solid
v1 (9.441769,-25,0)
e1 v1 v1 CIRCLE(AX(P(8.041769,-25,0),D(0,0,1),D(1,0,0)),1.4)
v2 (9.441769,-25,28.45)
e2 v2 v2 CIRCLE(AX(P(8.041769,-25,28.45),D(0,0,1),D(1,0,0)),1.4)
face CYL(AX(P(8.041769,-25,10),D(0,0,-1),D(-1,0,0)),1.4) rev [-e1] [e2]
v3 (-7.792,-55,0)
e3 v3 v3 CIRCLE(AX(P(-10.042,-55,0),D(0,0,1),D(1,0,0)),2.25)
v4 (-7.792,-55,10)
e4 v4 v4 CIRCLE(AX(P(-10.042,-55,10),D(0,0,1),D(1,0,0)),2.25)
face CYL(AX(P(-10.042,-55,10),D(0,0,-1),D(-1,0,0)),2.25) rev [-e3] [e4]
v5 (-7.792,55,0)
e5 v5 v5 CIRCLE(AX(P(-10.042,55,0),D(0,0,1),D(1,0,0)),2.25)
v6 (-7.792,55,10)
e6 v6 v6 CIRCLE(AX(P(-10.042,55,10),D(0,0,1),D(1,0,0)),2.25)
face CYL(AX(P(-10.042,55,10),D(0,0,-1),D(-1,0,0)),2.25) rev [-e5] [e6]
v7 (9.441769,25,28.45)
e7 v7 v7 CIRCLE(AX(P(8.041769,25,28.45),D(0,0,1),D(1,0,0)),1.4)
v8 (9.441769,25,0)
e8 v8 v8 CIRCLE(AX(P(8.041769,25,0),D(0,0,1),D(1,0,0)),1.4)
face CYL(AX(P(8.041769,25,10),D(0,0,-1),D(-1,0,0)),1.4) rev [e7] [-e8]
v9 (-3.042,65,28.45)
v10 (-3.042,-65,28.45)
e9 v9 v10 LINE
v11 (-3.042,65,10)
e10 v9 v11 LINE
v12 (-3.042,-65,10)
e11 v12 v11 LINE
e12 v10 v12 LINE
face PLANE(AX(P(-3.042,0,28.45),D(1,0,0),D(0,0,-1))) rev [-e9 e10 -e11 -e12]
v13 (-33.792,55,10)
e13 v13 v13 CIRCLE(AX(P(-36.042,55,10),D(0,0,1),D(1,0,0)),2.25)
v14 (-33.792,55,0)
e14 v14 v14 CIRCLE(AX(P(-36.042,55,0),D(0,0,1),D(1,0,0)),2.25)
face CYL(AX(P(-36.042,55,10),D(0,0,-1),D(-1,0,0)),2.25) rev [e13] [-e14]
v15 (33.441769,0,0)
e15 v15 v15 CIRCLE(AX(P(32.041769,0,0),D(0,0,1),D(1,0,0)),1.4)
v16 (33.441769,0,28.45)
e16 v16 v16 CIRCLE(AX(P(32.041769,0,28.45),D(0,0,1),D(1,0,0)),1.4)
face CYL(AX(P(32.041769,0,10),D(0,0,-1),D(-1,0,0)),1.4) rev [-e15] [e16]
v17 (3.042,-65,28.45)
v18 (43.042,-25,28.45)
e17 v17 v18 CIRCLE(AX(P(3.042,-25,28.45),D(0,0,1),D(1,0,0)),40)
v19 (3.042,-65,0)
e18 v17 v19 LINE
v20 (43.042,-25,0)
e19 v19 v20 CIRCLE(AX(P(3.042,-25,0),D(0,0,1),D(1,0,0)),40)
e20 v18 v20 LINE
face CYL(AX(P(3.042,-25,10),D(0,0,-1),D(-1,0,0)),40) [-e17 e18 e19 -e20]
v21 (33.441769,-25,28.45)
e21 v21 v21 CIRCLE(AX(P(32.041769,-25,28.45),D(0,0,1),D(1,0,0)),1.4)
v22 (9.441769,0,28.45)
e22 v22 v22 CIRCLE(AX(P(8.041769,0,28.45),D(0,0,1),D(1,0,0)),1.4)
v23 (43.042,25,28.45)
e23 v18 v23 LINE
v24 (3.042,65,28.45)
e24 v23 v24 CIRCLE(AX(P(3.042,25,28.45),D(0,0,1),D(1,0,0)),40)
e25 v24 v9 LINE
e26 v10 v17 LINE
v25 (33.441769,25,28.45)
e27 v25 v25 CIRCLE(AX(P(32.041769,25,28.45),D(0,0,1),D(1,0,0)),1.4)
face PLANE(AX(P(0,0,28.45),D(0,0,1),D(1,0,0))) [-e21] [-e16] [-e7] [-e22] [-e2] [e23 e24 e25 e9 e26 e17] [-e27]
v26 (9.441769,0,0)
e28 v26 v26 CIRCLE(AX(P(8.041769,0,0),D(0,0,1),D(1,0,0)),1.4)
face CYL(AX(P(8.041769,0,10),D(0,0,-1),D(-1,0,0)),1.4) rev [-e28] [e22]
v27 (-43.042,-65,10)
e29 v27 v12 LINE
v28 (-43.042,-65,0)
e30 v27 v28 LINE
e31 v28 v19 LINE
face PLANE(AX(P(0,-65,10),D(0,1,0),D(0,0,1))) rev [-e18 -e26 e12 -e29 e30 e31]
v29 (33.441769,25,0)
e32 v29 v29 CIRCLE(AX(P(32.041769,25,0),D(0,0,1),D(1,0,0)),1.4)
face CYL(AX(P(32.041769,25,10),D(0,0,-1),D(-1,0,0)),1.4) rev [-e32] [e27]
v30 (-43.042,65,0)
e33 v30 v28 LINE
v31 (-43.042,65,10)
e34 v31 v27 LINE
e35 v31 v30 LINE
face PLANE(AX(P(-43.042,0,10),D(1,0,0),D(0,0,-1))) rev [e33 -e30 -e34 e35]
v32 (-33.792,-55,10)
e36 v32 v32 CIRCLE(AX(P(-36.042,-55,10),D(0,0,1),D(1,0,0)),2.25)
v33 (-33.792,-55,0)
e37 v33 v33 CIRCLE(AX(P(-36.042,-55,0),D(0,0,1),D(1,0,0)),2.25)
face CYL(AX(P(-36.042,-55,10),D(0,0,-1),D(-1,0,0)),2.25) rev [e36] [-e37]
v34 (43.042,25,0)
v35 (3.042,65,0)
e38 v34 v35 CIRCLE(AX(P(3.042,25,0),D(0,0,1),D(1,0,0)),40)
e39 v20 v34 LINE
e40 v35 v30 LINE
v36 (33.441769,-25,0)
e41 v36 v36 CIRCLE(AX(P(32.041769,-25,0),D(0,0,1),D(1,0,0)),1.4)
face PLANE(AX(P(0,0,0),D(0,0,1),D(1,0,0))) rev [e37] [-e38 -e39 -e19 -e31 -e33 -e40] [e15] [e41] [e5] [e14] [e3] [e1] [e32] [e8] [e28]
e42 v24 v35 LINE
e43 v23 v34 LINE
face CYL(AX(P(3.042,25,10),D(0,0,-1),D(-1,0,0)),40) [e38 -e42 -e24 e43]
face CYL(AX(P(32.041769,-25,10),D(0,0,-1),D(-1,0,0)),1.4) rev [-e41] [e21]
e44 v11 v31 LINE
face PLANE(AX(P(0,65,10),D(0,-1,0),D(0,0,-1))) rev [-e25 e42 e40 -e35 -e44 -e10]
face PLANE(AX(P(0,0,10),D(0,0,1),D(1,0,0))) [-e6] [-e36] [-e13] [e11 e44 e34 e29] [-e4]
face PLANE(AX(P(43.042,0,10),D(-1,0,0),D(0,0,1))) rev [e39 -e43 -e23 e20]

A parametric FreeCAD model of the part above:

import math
import FreeCAD as App
import Part
import Sketcher
Q = App.Units.Quantity

doc = App.newDocument("Part")
body = doc.addObject("PartDesign::Body", "Body")

# Sketch on XY plane
sketch1 = doc.addObject("Sketcher::SketchObject", "Sketch")
body.addObject(sketch1)
sketch1.AttachmentSupport = (doc.XY_Plane, [""])
sketch1.MapMode = "FlatFace"
sketch1.addGeometry([
    Part.LineSegment(App.Vector(-43, 65, 0), App.Vector(-43, -65, 0)),  # 0
    Part.LineSegment(App.Vector(-43, -65, 0), App.Vector(3, -65, 0)),  # 1
    Part.ArcOfCircle(Part.Circle(App.Vector(3, -25, 0), App.Vector(0, 0, 1), 40), math.radians(-90), math.radians(0)),  # 2
    Part.LineSegment(App.Vector(43, -25, 0), App.Vector(43, 25, 0)),  # 3
    Part.ArcOfCircle(Part.Circle(App.Vector(3, 25, 0), App.Vector(0, 0, 1), 40), math.radians(0), math.radians(90)),  # 4
    Part.LineSegment(App.Vector(3, 65, 0), App.Vector(-43, 65, 0)),  # 5
    Part.Circle(App.Vector(-36, -55, 0), App.Vector(0, 0, 1), 2.2),  # 6
    Part.Circle(App.Vector(-10, -55, 0), App.Vector(0, 0, 1), 2.2),  # 7
    Part.Circle(App.Vector(8, -25, 0), App.Vector(0, 0, 1), 1.4),  # 8
    Part.Circle(App.Vector(8, 0, 0), App.Vector(0, 0, 1), 1.4),  # 9
    Part.Circle(App.Vector(32, -25, 0), App.Vector(0, 0, 1), 1.4),  # 10
    Part.Circle(App.Vector(32, 0, 0), App.Vector(0, 0, 1), 1.4),  # 11
    Part.Circle(App.Vector(-36, 55, 0), App.Vector(0, 0, 1), 2.2),  # 12
    Part.Circle(App.Vector(-10, 55, 0), App.Vector(0, 0, 1), 2.2),  # 13
    Part.Circle(App.Vector(8, 25, 0), App.Vector(0, 0, 1), 1.4),  # 14
    Part.Circle(App.Vector(32, 25, 0), App.Vector(0, 0, 1), 1.4),  # 15
], False)
sketch1.addConstraint([
    Sketcher.Constraint("Coincident", 0, 2, 1, 1),
    Sketcher.Constraint("Tangent", 1, 2, 2, 1),
    Sketcher.Constraint("Tangent", 2, 2, 3, 1),
    Sketcher.Constraint("Tangent", 3, 2, 4, 1),
    Sketcher.Constraint("Tangent", 4, 2, 5, 1),
    Sketcher.Constraint("Coincident", 5, 2, 0, 1),
    Sketcher.Constraint("Vertical", 0),
    Sketcher.Constraint("Horizontal", 1),
    Sketcher.Constraint("Vertical", 3),
    Sketcher.Constraint("Horizontal", 5),
    Sketcher.Constraint("Equal", 2, 4),
    Sketcher.Constraint("Equal", 6, 7),
    Sketcher.Constraint("Equal", 8, 9),
    Sketcher.Constraint("Equal", 9, 10),
    Sketcher.Constraint("Equal", 10, 11),
    Sketcher.Constraint("Equal", 7, 12),
    Sketcher.Constraint("Equal", 12, 13),
    Sketcher.Constraint("Equal", 11, 14),
    Sketcher.Constraint("Equal", 14, 15),
    Sketcher.Constraint("Symmetric", 6, 3, 12, 3, -1),
    Sketcher.Constraint("Symmetric", 7, 3, 13, 3, -1),
    Sketcher.Constraint("Symmetric", 8, 3, 14, 3, -1),
    Sketcher.Constraint("Symmetric", 10, 3, 15, 3, -1),
    Sketcher.Constraint("PointOnObject", 9, 3, -1),
    Sketcher.Constraint("PointOnObject", 11, 3, -1),
    Sketcher.Constraint("Horizontal", 6, 3, 7, 3),
    Sketcher.Constraint("Horizontal", 2, 3, 8, 3),
    Sketcher.Constraint("Horizontal", 8, 3, 10, 3),
    Sketcher.Constraint("Horizontal", 4, 3, 14, 3),
    Sketcher.Constraint("Vertical", 8, 3, 9, 3),
    Sketcher.Constraint("Vertical", 10, 3, 11, 3),
    Sketcher.Constraint("Radius", 2, Q("40 mm")),
    Sketcher.Constraint("Diameter", 6, Q("4.5 mm")),
    Sketcher.Constraint("Diameter", 8, Q("2.8 mm")),
    Sketcher.Constraint("DistanceY", 0, 2, 0, 1, Q("130.000001 mm")),
    Sketcher.Constraint("DistanceY", 6, 3, -1, 1, Q("55 mm")),
    Sketcher.Constraint("DistanceX", 6, 3, 7, 3, Q("26 mm")),
    Sketcher.Constraint("DistanceX", 8, 3, 10, 3, Q("24 mm")),
    Sketcher.Constraint("DistanceX", 0, 2, 6, 3, Q("7 mm")),
    Sketcher.Constraint("DistanceX", 1, 1, 1, 2, Q("46.084 mm")),
    Sketcher.Constraint("DistanceX", -1, 1, 2, 3, Q("3.042 mm")),
    Sketcher.Constraint("DistanceX", -1, 1, 8, 3, Q("8.041769 mm")),
])
pad1 = doc.addObject("PartDesign::Pad", "Pad")
body.addObject(pad1)
pad1.Profile = sketch1
pad1.Length = 10

# Sketch on XY plane
sketch2 = doc.addObject("Sketcher::SketchObject", "Sketch001")
body.addObject(sketch2)
sketch2.AttachmentSupport = (doc.XY_Plane, [""])
sketch2.MapMode = "FlatFace"
sketch2.addGeometry([
    Part.LineSegment(App.Vector(43, -25, 0), App.Vector(43, 25, 0)),  # 0
    Part.ArcOfCircle(Part.Circle(App.Vector(3, 25, 0), App.Vector(0, 0, 1), 40), math.radians(0), math.radians(90)),  # 1
    Part.LineSegment(App.Vector(3, 65, 0), App.Vector(-3, 65, 0)),  # 2
    Part.LineSegment(App.Vector(-3, 65, 0), App.Vector(-3, -65, 0)),  # 3
    Part.LineSegment(App.Vector(-3, -65, 0), App.Vector(3, -65, 0)),  # 4
    Part.ArcOfCircle(Part.Circle(App.Vector(3, -25, 0), App.Vector(0, 0, 1), 40), math.radians(-90), math.radians(0)),  # 5
    Part.Circle(App.Vector(8, -25, 0), App.Vector(0, 0, 1), 1.4),  # 6
    Part.Circle(App.Vector(32, -25, 0), App.Vector(0, 0, 1), 1.4),  # 7
    Part.Circle(App.Vector(8, 0, 0), App.Vector(0, 0, 1), 1.4),  # 8
    Part.Circle(App.Vector(8, 25, 0), App.Vector(0, 0, 1), 1.4),  # 9
    Part.Circle(App.Vector(32, 0, 0), App.Vector(0, 0, 1), 1.4),  # 10
    Part.Circle(App.Vector(32, 25, 0), App.Vector(0, 0, 1), 1.4),  # 11
], False)
sketch2.addConstraint([
    Sketcher.Constraint("Tangent", 0, 2, 1, 1),
    Sketcher.Constraint("Tangent", 1, 2, 2, 1),
    Sketcher.Constraint("Coincident", 2, 2, 3, 1),
    Sketcher.Constraint("Coincident", 3, 2, 4, 1),
    Sketcher.Constraint("Tangent", 4, 2, 5, 1),
    Sketcher.Constraint("Tangent", 5, 2, 0, 1),
    Sketcher.Constraint("Vertical", 0),
    Sketcher.Constraint("Horizontal", 2),
    Sketcher.Constraint("Vertical", 3),
    Sketcher.Constraint("Horizontal", 4),
    Sketcher.Constraint("Equal", 1, 5),
    Sketcher.Constraint("Equal", 6, 7),
    Sketcher.Constraint("Equal", 7, 8),
    Sketcher.Constraint("Equal", 8, 9),
    Sketcher.Constraint("Equal", 9, 10),
    Sketcher.Constraint("Equal", 10, 11),
    Sketcher.Constraint("Symmetric", 1, 2, 3, 2, -1, 1),
    Sketcher.Constraint("Symmetric", 6, 3, 9, 3, -1),
    Sketcher.Constraint("Symmetric", 7, 3, 11, 3, -1),
    Sketcher.Constraint("PointOnObject", 8, 3, -1),
    Sketcher.Constraint("PointOnObject", 10, 3, -1),
    Sketcher.Constraint("Horizontal", 5, 3, 6, 3),
    Sketcher.Constraint("Horizontal", 6, 3, 7, 3),
    Sketcher.Constraint("Vertical", 6, 3, 8, 3),
    Sketcher.Constraint("Vertical", 7, 3, 10, 3),
    Sketcher.Constraint("Radius", 1, Q("40 mm")),
    Sketcher.Constraint("Diameter", 6, Q("2.8 mm")),
    Sketcher.Constraint("DistanceY", 0, 1, 0, 2, Q("50.000001 mm")),
    Sketcher.Constraint("DistanceX", 6, 3, 7, 3, Q("24 mm")),
    Sketcher.Constraint("DistanceX", 2, 2, 2, 1, Q("6.084 mm")),
    Sketcher.Constraint("DistanceX", -1, 1, 6, 3, Q("8.041769 mm")),
])
pad2 = doc.addObject("PartDesign::Pad", "Pad001")
body.addObject(pad2)
pad2.Profile = sketch2
pad2.Length = 28.45

doc.recompute()
